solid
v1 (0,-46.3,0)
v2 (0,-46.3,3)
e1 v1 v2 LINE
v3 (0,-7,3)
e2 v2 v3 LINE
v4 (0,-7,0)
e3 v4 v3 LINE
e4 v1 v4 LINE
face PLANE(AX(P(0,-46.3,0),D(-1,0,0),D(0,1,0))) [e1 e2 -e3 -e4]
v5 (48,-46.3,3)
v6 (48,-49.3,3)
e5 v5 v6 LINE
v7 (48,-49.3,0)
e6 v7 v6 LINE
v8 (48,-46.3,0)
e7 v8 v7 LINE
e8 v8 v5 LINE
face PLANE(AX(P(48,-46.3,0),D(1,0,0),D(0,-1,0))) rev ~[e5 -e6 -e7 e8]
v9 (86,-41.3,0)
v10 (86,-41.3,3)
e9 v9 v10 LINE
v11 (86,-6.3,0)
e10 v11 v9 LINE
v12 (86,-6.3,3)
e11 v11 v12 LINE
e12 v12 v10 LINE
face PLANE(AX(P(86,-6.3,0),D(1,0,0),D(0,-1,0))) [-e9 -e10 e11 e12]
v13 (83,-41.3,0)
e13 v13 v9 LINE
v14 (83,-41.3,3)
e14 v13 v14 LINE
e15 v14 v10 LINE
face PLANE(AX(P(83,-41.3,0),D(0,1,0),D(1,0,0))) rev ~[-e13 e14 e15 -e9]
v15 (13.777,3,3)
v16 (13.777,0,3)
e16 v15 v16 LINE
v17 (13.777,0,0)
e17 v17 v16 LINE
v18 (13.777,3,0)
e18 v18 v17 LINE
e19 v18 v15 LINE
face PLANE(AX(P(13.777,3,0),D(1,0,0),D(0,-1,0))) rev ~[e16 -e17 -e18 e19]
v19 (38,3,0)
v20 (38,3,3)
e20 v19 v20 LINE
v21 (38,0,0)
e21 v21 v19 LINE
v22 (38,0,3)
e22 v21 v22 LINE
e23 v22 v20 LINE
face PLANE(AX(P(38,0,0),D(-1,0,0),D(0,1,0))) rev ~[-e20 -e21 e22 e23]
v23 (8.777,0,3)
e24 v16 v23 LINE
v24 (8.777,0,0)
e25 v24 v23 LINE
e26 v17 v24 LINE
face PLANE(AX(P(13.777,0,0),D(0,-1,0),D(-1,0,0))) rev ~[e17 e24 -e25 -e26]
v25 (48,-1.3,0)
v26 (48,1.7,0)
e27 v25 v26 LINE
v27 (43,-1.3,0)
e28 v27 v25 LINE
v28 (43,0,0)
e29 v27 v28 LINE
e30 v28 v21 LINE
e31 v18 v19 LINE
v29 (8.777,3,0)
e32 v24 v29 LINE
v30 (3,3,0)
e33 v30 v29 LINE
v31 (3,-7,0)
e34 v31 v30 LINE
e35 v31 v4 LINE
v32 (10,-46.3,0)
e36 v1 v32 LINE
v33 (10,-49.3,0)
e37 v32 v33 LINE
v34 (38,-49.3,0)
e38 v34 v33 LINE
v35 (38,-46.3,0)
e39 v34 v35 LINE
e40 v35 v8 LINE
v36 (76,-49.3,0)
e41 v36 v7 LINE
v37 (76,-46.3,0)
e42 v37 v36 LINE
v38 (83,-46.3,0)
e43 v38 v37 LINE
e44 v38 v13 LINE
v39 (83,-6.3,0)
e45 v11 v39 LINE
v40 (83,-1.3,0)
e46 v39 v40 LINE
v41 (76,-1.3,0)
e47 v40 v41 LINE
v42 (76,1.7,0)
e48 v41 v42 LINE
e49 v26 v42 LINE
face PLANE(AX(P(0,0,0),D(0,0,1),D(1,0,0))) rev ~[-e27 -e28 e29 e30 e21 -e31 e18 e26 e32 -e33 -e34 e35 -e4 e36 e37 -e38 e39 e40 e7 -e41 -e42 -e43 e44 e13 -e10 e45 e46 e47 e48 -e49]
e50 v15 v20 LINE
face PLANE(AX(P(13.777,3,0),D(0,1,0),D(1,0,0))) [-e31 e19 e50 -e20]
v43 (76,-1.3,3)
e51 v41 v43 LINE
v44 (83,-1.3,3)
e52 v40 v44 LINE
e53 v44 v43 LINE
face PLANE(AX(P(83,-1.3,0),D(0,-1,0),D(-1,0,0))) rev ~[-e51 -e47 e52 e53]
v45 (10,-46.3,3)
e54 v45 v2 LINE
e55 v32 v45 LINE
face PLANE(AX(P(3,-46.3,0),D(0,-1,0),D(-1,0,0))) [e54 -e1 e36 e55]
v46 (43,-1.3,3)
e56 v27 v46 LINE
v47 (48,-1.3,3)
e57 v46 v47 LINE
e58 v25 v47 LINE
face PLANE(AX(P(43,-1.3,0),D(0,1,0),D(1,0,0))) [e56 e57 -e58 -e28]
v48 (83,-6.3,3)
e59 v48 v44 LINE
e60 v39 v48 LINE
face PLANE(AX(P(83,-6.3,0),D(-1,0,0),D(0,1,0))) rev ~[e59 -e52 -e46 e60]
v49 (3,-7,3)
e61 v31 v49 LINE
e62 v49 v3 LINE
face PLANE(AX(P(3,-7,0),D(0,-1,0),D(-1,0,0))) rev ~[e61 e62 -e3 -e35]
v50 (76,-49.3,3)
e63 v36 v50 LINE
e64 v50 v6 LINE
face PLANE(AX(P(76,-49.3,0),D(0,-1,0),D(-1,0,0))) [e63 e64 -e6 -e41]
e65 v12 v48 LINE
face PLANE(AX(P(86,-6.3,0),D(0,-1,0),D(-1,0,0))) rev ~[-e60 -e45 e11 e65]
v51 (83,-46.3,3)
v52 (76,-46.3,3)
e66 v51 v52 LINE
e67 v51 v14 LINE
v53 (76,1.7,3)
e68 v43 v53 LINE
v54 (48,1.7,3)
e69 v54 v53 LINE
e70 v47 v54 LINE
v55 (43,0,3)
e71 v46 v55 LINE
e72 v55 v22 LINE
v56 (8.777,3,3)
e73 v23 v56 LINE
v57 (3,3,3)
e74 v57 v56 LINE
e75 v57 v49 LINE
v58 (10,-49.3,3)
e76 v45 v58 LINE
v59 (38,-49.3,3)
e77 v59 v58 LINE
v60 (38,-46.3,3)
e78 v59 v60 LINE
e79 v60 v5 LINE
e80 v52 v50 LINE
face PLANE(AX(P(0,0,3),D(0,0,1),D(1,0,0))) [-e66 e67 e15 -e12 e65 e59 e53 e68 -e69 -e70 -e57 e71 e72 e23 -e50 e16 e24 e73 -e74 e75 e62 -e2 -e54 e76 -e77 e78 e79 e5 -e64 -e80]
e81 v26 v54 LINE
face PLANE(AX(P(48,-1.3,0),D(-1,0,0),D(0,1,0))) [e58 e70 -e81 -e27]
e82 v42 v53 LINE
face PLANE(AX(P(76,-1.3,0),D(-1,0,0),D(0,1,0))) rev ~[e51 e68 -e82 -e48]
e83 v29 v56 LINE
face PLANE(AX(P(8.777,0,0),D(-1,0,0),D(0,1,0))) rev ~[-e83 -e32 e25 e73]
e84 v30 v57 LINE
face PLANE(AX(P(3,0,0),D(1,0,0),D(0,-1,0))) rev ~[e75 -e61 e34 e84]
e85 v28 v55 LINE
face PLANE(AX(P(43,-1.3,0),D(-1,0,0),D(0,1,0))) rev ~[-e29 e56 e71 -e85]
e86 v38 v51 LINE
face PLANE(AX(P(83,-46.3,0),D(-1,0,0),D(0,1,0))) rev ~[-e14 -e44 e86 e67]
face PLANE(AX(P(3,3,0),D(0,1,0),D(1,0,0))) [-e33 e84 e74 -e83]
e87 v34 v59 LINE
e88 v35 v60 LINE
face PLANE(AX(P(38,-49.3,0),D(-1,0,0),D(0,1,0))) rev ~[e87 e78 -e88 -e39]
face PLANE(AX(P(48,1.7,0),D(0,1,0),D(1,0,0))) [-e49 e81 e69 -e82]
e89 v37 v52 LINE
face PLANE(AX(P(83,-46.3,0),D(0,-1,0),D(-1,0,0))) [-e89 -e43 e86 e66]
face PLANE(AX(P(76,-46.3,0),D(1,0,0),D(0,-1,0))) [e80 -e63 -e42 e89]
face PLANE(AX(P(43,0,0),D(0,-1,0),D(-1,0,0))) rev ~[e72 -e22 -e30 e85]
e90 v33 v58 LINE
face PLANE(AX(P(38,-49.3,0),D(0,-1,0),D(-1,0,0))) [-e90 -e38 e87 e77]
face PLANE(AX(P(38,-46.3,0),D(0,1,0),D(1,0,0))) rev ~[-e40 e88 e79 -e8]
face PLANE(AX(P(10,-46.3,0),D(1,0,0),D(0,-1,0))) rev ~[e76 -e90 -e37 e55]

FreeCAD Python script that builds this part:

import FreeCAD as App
import Part
import Sketcher


def add_polygon(sketch, points):
    """Adds a closed chain of lines whose ends are joined by coincident constraints."""
    first, n = sketch.GeometryCount, len(points)
    for a, b in zip(points, points[1:] + points[:1]):
        sketch.addGeometry(Part.LineSegment(App.Vector(*a, 0), App.Vector(*b, 0)), False)
    for i in range(n):
        sketch.addConstraint(Sketcher.Constraint("Coincident", first + i, 2, first + (i + 1) % n, 1))

doc = App.newDocument("Part")
params = doc.addObject("Spreadsheet::Sheet", "Params")
for row, (alias, value) in enumerate([
    ("sketch1_width", "10 mm"),
    ("sketch1_width2", "28 mm"),
    ("sketch1_width3", "7 mm"),
    ("sketch1_height", "35 mm"),
    ("sketch1_height2", "39.3 mm"),
    ("pad1_length", "3 mm"),
], start=1):
    params.set(f"A{row}", alias)
    params.set(f"B{row}", "=" + value)
    params.setAlias(f"B{row}", alias)

body = doc.addObject("PartDesign::Body", "Body")

# Sketch on XY plane
sketch1 = doc.addObject("Sketcher::SketchObject", "Sketch")
body.addObject(sketch1)
sketch1.AttachmentSupport = (doc.XY_Plane, [""])
sketch1.MapMode = "FlatFace"
add_polygon(sketch1, [(0, -7), (0, -46.3), (10, -46.3), (10, -49.3), (38, -49.3), (38, -46.3), (48, -46.3), (48, -49.3), (76, -49.3), (76, -46.3), (83, -46.3), (83, -41.3), (86, -41.3), (86, -6.3), (83, -6.3), (83, -1.3), (76, -1.3), (76, 1.7), (48, 1.7), (48, -1.3), (43, -1.3), (43, 0), (38, 0), (38, 3), (13.8, 3), (13.8, 0), (8.8, 0), (8.8, 3), (3, 3), (3, -7)])  # lines 0-29
sketch1.addConstraint([
    Sketcher.Constraint("Vertical", 0),
    Sketcher.Constraint("Horizontal", 1),
    Sketcher.Constraint("Vertical", 2),
    Sketcher.Constraint("Horizontal", 3),
    Sketcher.Constraint("Vertical", 4),
    Sketcher.Constraint("Horizontal", 5),
    Sketcher.Constraint("Vertical", 6),
    Sketcher.Constraint("Horizontal", 7),
    Sketcher.Constraint("Vertical", 8),
    Sketcher.Constraint("Horizontal", 9),
    Sketcher.Constraint("Vertical", 10),
    Sketcher.Constraint("Horizontal", 11),
    Sketcher.Constraint("Vertical", 12),
    Sketcher.Constraint("Horizontal", 13),
    Sketcher.Constraint("Vertical", 14),
    Sketcher.Constraint("Horizontal", 15),
    Sketcher.Constraint("Vertical", 16),
    Sketcher.Constraint("Horizontal", 17),
    Sketcher.Constraint("Vertical", 18),
    Sketcher.Constraint("Horizontal", 19),
    Sketcher.Constraint("Vertical", 20),
    Sketcher.Constraint("Horizontal", 21),
    Sketcher.Constraint("Vertical", 22),
    Sketcher.Constraint("Horizontal", 23),
    Sketcher.Constraint("Vertical", 24),
    Sketcher.Constraint("Horizontal", 25),
    Sketcher.Constraint("Vertical", 26),
    Sketcher.Constraint("Horizontal", 27),
    Sketcher.Constraint("Vertical", 28),
    Sketcher.Constraint("Horizontal", 29),
    Sketcher.Constraint("PointOnObject", 0, 2, -2),
    Sketcher.Constraint("PointOnObject", 20, 2, -1),
    Sketcher.Constraint("PointOnObject", 24, 2, -1),
    Sketcher.Constraint("Horizontal", 1, 2, 4, 2),
    Sketcher.Constraint("Horizontal", 3, 2, 6, 2),
    Sketcher.Constraint("Horizontal", 5, 2, 8, 2),
    Sketcher.Constraint("Horizontal", 15, 2, 18, 2),
    Sketcher.Constraint("Horizontal", 23, 2, 26, 2),
    Sketcher.Constraint("Vertical", 10, 2, 13, 2),
    Sketcher.Constraint("Vertical", 8, 2, 15, 2),
    Sketcher.Constraint("Vertical", 6, 2, 17, 2),
    Sketcher.Constraint("Vertical", 4, 2, 21, 2),
    Sketcher.Constraint("Equal", 1, 5),
    Sketcher.Constraint("Equal", 3, 7),
    Sketcher.Constraint("Equal", 19, 21),
    Sketcher.Constraint("Equal", 21, 25),
    Sketcher.Constraint("Equal", 13, 29),
    Sketcher.Constraint("Equal", 29, 2),
    Sketcher.Constraint("Equal", 25, 10),
    Sketcher.Constraint("Equal", 10, 14),
    Sketcher.Constraint("Equal", 8, 16),
    Sketcher.Constraint("Equal", 18, 22),
    Sketcher.Constraint("Equal", 5, 28),
    Sketcher.Constraint("DistanceX", 1, 1, 1, 2, 10.0),
    Sketcher.Constraint("DistanceX", 8, 2, 11, 2, 10.0),
    Sketcher.Constraint("DistanceX", 3, 1, 3, 2, 28.0),
    Sketcher.Constraint("DistanceX", 9, 1, 9, 2, 7.0),
    Sketcher.Constraint("DistanceY", 12, 1, 12, 2, 35.0),
    Sketcher.Constraint("DistanceY", 0, 2, 0, 1, 39.3),
    Sketcher.Constraint("DistanceX", 23, 2, 23, 1, 24.223),
])
sketch1.setExpression("Constraints[83]", "Params.sketch1_width")
sketch1.setExpression("Constraints[85]", "Params.sketch1_width2")
sketch1.setExpression("Constraints[86]", "Params.sketch1_width3")
sketch1.setExpression("Constraints[87]", "Params.sketch1_height")
sketch1.setExpression("Constraints[88]", "Params.sketch1_height2")
pad1 = doc.addObject("PartDesign::Pad", "Pad")
body.addObject(pad1)
pad1.Profile = sketch1
pad1.setExpression("Length", "Params.pad1_length")

doc.recompute()
